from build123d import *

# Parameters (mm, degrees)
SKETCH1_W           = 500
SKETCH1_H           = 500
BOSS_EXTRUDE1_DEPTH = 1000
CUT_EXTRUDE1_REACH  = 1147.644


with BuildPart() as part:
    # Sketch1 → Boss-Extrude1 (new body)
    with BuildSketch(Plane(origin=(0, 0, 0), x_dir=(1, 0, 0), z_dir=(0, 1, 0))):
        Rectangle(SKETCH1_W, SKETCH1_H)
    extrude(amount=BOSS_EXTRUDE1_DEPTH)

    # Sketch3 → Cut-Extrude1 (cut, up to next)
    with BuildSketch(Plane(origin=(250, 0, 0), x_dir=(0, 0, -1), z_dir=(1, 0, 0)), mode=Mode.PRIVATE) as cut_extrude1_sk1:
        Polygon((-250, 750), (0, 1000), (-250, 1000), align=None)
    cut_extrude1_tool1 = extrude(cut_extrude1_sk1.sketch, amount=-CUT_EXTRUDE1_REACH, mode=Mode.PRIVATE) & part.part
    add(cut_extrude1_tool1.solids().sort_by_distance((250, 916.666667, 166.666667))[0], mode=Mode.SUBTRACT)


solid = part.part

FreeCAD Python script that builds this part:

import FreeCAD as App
import Part
import Sketcher


def add_polygon(sketch, points):
    """Adds a closed chain of lines whose ends are joined by coincident constraints."""
    first, n = sketch.GeometryCount, len(points)
    for a, b in zip(points, points[1:] + points[:1]):
        sketch.addGeometry(Part.LineSegment(App.Vector(*a, 0), App.Vector(*b, 0)), False)
    for i in range(n):
        sketch.addConstraint(Sketcher.Constraint("Coincident", first + i, 2, first + (i + 1) % n, 1))

doc = App.newDocument("Part")
body = doc.addObject("PartDesign::Body", "Body")

sketch1 = body.newObject("Sketcher::SketchObject", "Sketch")
sketch1.AttachmentSupport = (doc.getObject("XZ_Plane"), [""])
sketch1.MapMode = "FlatFace"
add_polygon(sketch1, [(-250, -250), (-250, 250), (250, 250), (250, -250)])
sketch1.addConstraint(Sketcher.Constraint("Vertical", 0))
sketch1.addConstraint(Sketcher.Constraint("Horizontal", 1))
sketch1.addConstraint(Sketcher.Constraint("Vertical", 2))
sketch1.addConstraint(Sketcher.Constraint("Horizontal", 3))
sketch1.addConstraint(Sketcher.Constraint("Symmetric", 0, 2, 2, 2, -1, 1))
sketch1.addConstraint(Sketcher.Constraint("Equal", 3, 0))
sketch1.addConstraint(Sketcher.Constraint("DistanceX", 1, 1, 1, 2, 500.0))
pad1 = body.newObject("PartDesign::Pad", "Pad")
pad1.Profile = sketch1
pad1.Length = 1000
pad1.Reversed = True

sketch2 = body.newObject("Sketcher::SketchObject", "Sketch001")
sketch2.AttachmentSupport = (doc.getObject("YZ_Plane"), [""])
sketch2.MapMode = "FlatFace"
sketch2.AttachmentOffset = App.Placement(App.Vector(0, 0, 250), App.Rotation())
add_polygon(sketch2, [(750, 250), (1000, 0), (1000, 250)])
sketch2.addConstraint(Sketcher.Constraint("Vertical", 1))
sketch2.addConstraint(Sketcher.Constraint("Horizontal", 2))
sketch2.addConstraint(Sketcher.Constraint("PointOnObject", 0, 2, -1))
sketch2.addConstraint(Sketcher.Constraint("Equal", 2, 1))
sketch2.addConstraint(Sketcher.Constraint("DistanceX", 2, 2, 2, 1, 250.0))
sketch2.addConstraint(Sketcher.Constraint("DistanceX", -1, 1, 0, 2, 1000.0))
pocket1 = body.newObject("PartDesign::Pocket", "Pocket")
pocket1.Profile = sketch2
pocket1.Type = "UpToFirst"

doc.recompute()
